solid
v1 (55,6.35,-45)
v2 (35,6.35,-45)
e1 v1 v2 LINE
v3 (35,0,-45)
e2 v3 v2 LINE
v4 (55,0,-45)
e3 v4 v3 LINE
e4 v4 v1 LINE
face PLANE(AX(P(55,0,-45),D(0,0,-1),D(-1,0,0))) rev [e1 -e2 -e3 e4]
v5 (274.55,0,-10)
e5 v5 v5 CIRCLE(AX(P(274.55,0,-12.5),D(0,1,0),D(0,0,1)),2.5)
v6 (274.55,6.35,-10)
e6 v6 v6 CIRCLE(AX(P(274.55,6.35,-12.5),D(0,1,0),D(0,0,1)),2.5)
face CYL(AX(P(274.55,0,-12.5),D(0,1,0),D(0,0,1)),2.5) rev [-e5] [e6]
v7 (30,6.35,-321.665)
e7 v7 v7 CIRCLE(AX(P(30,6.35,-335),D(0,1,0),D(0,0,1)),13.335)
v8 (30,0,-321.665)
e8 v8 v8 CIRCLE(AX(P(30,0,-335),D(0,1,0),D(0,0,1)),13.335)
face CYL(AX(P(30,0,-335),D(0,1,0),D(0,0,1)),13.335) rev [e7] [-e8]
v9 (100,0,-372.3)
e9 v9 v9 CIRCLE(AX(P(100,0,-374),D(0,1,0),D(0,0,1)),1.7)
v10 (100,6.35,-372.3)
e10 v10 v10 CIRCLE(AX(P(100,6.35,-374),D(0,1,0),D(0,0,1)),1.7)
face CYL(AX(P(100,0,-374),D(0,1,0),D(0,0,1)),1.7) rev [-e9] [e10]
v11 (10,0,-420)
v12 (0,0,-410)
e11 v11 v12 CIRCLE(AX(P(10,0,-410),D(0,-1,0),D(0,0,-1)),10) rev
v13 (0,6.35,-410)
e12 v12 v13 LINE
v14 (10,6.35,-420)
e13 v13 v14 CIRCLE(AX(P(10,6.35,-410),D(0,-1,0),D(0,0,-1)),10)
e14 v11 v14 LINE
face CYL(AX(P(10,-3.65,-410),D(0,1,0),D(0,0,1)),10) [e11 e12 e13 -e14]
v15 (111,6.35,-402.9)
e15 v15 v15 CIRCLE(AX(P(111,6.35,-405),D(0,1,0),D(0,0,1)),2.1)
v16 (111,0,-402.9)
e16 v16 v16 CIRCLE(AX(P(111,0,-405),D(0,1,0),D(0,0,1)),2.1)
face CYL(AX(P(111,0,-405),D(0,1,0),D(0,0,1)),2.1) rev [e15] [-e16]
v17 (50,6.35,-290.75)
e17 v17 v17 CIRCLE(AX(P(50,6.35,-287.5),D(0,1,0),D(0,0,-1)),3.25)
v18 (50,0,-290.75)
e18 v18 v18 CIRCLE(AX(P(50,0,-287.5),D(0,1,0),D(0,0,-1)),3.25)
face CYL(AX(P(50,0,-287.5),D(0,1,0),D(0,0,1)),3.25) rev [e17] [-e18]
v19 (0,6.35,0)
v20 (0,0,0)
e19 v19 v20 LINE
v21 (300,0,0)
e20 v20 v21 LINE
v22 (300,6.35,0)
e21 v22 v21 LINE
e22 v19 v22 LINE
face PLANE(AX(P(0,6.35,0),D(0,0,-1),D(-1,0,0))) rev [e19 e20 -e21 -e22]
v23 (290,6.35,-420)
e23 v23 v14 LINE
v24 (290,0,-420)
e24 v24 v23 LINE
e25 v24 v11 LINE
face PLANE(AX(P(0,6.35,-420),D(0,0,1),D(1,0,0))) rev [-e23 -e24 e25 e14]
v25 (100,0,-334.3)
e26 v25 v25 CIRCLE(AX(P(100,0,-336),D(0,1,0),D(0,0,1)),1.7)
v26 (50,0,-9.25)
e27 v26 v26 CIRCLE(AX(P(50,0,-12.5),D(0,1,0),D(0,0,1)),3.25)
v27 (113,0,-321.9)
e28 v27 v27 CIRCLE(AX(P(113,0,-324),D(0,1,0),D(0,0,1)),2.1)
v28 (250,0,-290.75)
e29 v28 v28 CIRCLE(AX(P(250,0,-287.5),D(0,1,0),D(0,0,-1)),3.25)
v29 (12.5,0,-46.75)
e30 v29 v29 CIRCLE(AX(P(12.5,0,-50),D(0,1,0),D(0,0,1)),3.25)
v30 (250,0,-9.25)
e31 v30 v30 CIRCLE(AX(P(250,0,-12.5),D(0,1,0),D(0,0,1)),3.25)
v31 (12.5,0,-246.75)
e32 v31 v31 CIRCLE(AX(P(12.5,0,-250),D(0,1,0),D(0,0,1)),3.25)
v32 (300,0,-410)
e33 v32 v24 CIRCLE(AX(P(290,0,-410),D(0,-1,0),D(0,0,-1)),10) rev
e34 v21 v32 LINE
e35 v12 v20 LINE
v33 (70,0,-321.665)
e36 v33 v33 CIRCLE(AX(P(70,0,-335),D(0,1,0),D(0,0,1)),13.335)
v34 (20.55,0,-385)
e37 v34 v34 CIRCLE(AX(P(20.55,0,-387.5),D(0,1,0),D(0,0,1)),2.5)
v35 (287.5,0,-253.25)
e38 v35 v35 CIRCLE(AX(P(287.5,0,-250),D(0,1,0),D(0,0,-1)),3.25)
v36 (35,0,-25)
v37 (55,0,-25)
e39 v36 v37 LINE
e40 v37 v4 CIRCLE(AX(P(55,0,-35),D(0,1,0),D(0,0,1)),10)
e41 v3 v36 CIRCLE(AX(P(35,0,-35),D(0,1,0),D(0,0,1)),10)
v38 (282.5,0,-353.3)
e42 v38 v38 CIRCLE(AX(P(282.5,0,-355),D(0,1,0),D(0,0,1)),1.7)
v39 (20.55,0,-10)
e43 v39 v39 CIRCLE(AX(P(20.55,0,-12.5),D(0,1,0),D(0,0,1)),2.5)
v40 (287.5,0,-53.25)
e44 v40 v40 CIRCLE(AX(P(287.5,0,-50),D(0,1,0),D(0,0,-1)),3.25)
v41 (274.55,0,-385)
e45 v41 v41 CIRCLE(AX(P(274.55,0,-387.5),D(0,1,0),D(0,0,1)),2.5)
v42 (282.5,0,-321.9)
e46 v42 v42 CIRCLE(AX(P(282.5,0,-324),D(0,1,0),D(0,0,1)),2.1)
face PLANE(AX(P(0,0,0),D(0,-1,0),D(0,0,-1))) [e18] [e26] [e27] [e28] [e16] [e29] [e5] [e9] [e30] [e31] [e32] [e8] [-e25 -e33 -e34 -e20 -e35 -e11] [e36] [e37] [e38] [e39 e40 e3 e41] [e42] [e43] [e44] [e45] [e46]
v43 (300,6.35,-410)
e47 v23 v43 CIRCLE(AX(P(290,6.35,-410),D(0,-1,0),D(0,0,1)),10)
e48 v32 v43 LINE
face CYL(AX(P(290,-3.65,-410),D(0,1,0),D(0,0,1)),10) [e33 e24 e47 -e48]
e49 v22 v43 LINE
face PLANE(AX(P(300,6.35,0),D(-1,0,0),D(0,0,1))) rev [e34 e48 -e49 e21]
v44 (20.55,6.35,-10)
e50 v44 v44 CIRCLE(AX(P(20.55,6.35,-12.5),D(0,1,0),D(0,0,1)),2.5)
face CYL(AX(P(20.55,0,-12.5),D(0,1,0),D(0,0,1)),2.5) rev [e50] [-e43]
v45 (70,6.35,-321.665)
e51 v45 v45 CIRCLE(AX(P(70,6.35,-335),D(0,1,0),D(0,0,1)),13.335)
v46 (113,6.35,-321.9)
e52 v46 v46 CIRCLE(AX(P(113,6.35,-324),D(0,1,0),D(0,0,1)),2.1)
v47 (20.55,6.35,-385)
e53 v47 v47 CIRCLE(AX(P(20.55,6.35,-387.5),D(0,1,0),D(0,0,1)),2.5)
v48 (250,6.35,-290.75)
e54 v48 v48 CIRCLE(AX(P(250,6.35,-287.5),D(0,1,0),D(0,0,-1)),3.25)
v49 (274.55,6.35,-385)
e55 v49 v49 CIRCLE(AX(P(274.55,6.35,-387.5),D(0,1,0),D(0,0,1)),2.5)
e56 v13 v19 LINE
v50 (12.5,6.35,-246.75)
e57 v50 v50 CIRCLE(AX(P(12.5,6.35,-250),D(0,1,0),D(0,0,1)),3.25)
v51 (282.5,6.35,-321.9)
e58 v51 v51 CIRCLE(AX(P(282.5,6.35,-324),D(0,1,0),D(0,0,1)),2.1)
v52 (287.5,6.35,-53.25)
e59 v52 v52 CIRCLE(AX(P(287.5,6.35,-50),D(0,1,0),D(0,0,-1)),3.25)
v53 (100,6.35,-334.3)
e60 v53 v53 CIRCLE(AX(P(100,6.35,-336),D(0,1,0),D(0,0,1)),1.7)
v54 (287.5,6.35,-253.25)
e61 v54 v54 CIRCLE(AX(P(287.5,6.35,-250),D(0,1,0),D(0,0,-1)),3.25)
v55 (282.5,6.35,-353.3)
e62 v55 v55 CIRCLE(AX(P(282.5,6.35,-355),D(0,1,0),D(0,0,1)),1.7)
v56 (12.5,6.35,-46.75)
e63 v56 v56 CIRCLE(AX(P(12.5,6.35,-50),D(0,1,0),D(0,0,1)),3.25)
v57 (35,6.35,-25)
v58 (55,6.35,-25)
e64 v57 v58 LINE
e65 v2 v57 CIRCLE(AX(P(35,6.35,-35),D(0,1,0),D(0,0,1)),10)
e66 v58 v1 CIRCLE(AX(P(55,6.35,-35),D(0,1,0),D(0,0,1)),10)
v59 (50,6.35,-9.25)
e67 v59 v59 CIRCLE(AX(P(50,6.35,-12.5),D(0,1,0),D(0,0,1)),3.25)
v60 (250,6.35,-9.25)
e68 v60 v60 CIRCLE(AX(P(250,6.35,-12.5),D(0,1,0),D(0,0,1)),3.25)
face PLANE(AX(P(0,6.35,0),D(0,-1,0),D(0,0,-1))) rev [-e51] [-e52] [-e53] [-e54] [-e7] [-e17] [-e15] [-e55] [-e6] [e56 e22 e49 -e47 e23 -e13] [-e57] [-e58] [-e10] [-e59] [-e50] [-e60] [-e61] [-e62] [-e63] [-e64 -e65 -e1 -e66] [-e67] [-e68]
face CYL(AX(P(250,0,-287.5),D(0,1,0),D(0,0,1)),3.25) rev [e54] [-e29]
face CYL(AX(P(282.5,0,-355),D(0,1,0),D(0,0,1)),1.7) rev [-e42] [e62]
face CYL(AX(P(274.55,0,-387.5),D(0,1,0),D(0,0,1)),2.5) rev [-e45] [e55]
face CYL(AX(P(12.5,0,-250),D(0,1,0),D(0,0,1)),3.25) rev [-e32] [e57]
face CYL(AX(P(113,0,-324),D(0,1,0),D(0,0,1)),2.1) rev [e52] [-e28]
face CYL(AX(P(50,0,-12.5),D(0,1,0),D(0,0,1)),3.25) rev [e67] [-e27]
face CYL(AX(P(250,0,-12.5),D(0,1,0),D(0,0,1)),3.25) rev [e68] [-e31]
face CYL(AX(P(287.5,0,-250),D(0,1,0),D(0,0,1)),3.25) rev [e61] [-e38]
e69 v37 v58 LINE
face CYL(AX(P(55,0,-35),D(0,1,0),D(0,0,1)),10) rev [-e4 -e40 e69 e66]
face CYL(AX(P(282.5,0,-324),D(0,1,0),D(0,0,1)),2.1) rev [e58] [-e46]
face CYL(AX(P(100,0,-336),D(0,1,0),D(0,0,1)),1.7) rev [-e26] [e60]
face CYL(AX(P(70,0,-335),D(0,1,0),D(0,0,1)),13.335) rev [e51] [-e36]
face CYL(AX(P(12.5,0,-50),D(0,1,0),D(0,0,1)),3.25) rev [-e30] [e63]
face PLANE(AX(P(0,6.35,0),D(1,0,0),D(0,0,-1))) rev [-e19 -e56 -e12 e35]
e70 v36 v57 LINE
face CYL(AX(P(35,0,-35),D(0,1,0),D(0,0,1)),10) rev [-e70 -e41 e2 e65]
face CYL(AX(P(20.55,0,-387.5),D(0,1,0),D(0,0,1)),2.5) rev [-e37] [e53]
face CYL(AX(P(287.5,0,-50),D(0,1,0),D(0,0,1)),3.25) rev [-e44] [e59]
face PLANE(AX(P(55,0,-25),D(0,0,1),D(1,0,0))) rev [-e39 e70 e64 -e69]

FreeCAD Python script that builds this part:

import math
import FreeCAD as App
import Part
import Sketcher

V = App.Vector
Q = App.Units.Quantity

doc = App.newDocument("Part")
body = doc.addObject("PartDesign::Body", "Body")

# Sketch on XZ plane
sketch1 = doc.addObject("Sketcher::SketchObject", "Sketch")
body.addObject(sketch1)
sketch1.AttachmentSupport = (doc.XZ_Plane, [""])
sketch1.MapMode = "FlatFace"
sketch1.addGeometry([
    Part.LineSegment(V(0, -420, 0), V(0, 0, 0)),
    Part.LineSegment(V(0, 0, 0), V(300, 0, 0)),
    Part.LineSegment(V(300, 0, 0), V(300, -420, 0)),
    Part.LineSegment(V(300, -420, 0), V(0, -420, 0)),
], False)
sketch1.addConstraint([
    Sketcher.Constraint("Coincident", 0, 2, 1, 1),
    Sketcher.Constraint("Coincident", 1, 2, 2, 1),
    Sketcher.Constraint("Coincident", 2, 2, 3, 1),
    Sketcher.Constraint("Coincident", 3, 2, 0, 1),
    Sketcher.Constraint("Vertical", 0),
    Sketcher.Constraint("Horizontal", 1),
    Sketcher.Constraint("Vertical", 2),
    Sketcher.Constraint("Horizontal", 3),
    Sketcher.Constraint("Coincident", 0, 2, -1, 1),
    Sketcher.Constraint("DistanceX", 1, 1, 1, 2, Q("300 mm")),
    Sketcher.Constraint("DistanceY", 0, 1, 0, 2, Q("420 mm")),
])
pad1 = doc.addObject("PartDesign::Pad", "Pad")
body.addObject(pad1)
pad1.Profile = sketch1
pad1.Length = 6.35
pad1.Reversed = True

# Sketch on XZ plane
sketch2 = doc.addObject("Sketcher::SketchObject", "Sketch001")
body.addObject(sketch2)
sketch2.AttachmentSupport = (doc.XZ_Plane, [""])
sketch2.MapMode = "FlatFace"
sketch2.AttachmentOffset = App.Placement(V(0, 0, -6.35), App.Rotation())
sketch2.addGeometry([
    Part.Circle(V(50, -12.5, 0), V(0, 0, 1), 3.25),  # 0
    Part.Circle(V(250, -12.5, 0), V(0, 0, 1), 3.25),  # 1
    Part.Circle(V(12.5, -50, 0), V(0, 0, 1), 3.25),  # 2
    Part.Circle(V(12.5, -250, 0), V(0, 0, 1), 3.25),  # 3
    Part.Circle(V(250, -287.5, 0), V(0, 0, 1), 3.25),  # 4
    Part.Circle(V(50, -287.5, 0), V(0, 0, 1), 3.25),  # 5
    Part.Circle(V(287.5, -250, 0), V(0, 0, 1), 3.25),  # 6
    Part.Circle(V(287.5, -50, 0), V(0, 0, 1), 3.25),  # 7
], False)
sketch2.addConstraint([
    Sketcher.Constraint("Equal", 0, 1),
    Sketcher.Constraint("Equal", 1, 2),
    Sketcher.Constraint("Equal", 2, 3),
    Sketcher.Constraint("Equal", 3, 4),
    Sketcher.Constraint("Equal", 4, 5),
    Sketcher.Constraint("Equal", 5, 6),
    Sketcher.Constraint("Equal", 6, 7),
    Sketcher.Constraint("Horizontal", 0, 3, 1, 3),
    Sketcher.Constraint("Horizontal", 4, 3, 5, 3),
    Sketcher.Constraint("Horizontal", 3, 3, 6, 3),
    Sketcher.Constraint("Horizontal", 2, 3, 7, 3),
    Sketcher.Constraint("Vertical", 2, 3, 3, 3),
    Sketcher.Constraint("Vertical", 1, 3, 4, 3),
    Sketcher.Constraint("Vertical", 0, 3, 5, 3),
    Sketcher.Constraint("Vertical", 6, 3, 7, 3),
    Sketcher.Constraint("Diameter", 0, Q("6.5 mm")),
    Sketcher.Constraint("DistanceX", -1, 1, 0, 3, Q("50 mm")),
    Sketcher.Constraint("DistanceX", -1, 1, 1, 3, Q("250 mm")),
    Sketcher.Constraint("DistanceY", 2, 3, -1, 1, Q("50 mm")),
    Sketcher.Constraint("DistanceY", 3, 3, -1, 1, Q("250 mm")),
    Sketcher.Constraint("DistanceY", 4, 3, 1, 3, Q("275 mm")),
    Sketcher.Constraint("DistanceX", 3, 3, 6, 3, Q("275 mm")),
    Sketcher.Constraint("DistanceY", 0, 3, -1, 1, Q("12.5 mm")),
    Sketcher.Constraint("DistanceX", -1, 1, 2, 3, Q("12.5 mm")),
])
pocket1 = doc.addObject("PartDesign::Pocket", "Pocket")
body.addObject(pocket1)
pocket1.Profile = sketch2
pocket1.Type = "ThroughAll"
pocket1.Reversed = True

# Sketch on XZ plane
sketch3 = doc.addObject("Sketcher::SketchObject", "Sketch002")
body.addObject(sketch3)
sketch3.AttachmentSupport = (doc.XZ_Plane, [""])
sketch3.MapMode = "FlatFace"
sketch3.AttachmentOffset = App.Placement(V(0, 0, -6.35), App.Rotation())
sketch3.addGeometry([
    Part.Circle(V(20.55, -12.5, 0), V(0, 0, 1), 2.5),
    Part.Circle(V(274.55, -12.5, 0), V(0, 0, 1), 2.5),
    Part.Circle(V(20.55, -387.5, 0), V(0, 0, 1), 2.5),
    Part.Circle(V(274.55, -387.5, 0), V(0, 0, 1), 2.5),
], False)
sketch3.addConstraint([
    Sketcher.Constraint("Equal", 0, 1),
    Sketcher.Constraint("Equal", 1, 2),
    Sketcher.Constraint("Equal", 2, 3),
    Sketcher.Constraint("Horizontal", 0, 3, 1, 3),
    Sketcher.Constraint("Horizontal", 2, 3, 3, 3),
    Sketcher.Constraint("Vertical", 0, 3, 2, 3),
    Sketcher.Constraint("Vertical", 1, 3, 3, 3),
    Sketcher.Constraint("Diameter", 0, Q("5 mm")),
    Sketcher.Constraint("DistanceX", 0, 3, 1, 3, Q("254 mm")),
    Sketcher.Constraint("DistanceY", 2, 3, 0, 3, Q("375 mm")),
    Sketcher.Constraint("DistanceY", 0, 3, -1, 1, Q("12.5 mm")),
    Sketcher.Constraint("DistanceX", -1, 1, 0, 3, Q("20.55 mm")),
])
pocket2 = doc.addObject("PartDesign::Pocket", "Pocket001")
body.addObject(pocket2)
pocket2.Profile = sketch3
pocket2.Type = "ThroughAll"
pocket2.Reversed = True

# Sketch on XZ plane
sketch4 = doc.addObject("Sketcher::SketchObject", "Sketch003")
body.addObject(sketch4)
sketch4.AttachmentSupport = (doc.XZ_Plane, [""])
sketch4.MapMode = "FlatFace"
sketch4.AttachmentOffset = App.Placement(V(0, 0, -6.35), App.Rotation())
sketch4.addGeometry([
    Part.Circle(V(282.5, -355, 0), V(0, 0, 1), 1.7),
    Part.Circle(V(100, -336, 0), V(0, 0, 1), 1.7),
    Part.Circle(V(100, -374, 0), V(0, 0, 1), 1.7),
], False)
sketch4.addConstraint([
    Sketcher.Constraint("Equal", 0, 1),
    Sketcher.Constraint("Equal", 1, 2),
    Sketcher.Constraint("Vertical", 1, 3, 2, 3),
    Sketcher.Constraint("Diameter", 0, Q("3.4 mm")),
    Sketcher.Constraint("DistanceY", 0, 3, -1, 1, Q("355 mm")),
    Sketcher.Constraint("DistanceX", -1, 1, 1, 3, Q("100 mm")),
    Sketcher.Constraint("DistanceY", 1, 3, -1, 1, Q("336 mm")),
    Sketcher.Constraint("DistanceY", 2, 3, -1, 1, Q("374 mm")),
    Sketcher.Constraint("DistanceX", -1, 1, 0, 3, Q("282.5 mm")),
])
pocket3 = doc.addObject("PartDesign::Pocket", "Pocket002")
body.addObject(pocket3)
pocket3.Profile = sketch4
pocket3.Type = "ThroughAll"
pocket3.Reversed = True

# Sketch on XZ plane
sketch5 = doc.addObject("Sketcher::SketchObject", "Sketch004")
body.addObject(sketch5)
sketch5.AttachmentSupport = (doc.XZ_Plane, [""])
sketch5.MapMode = "FlatFace"
sketch5.AttachmentOffset = App.Placement(V(0, 0, -6.35), App.Rotation())
sketch5.addGeometry([
    Part.LineSegment(V(300, -420, 0), V(290, -420, 0)),  # 0
    Part.ArcOfCircle(Part.Circle(V(290, -410, 0), V(0, 0, 1), 10), math.radians(-90), math.radians(0)),  # 1
    Part.LineSegment(V(300, -410, 0), V(300, -420, 0)),  # 2
    Part.LineSegment(V(10, -420, 0), V(0, -420, 0)),  # 3
    Part.LineSegment(V(0, -420, 0), V(0, -410, 0)),  # 4
    Part.ArcOfCircle(Part.Circle(V(10, -410, 0), V(0, 0, 1), 10), math.radians(180), math.radians(270)),  # 5
], False)
sketch5.addConstraint([
    Sketcher.Constraint("Tangent", 0, 2, 1, 1),
    Sketcher.Constraint("Tangent", 1, 2, 2, 1),
    Sketcher.Constraint("Coincident", 2, 2, 0, 1),
    Sketcher.Constraint("Coincident", 3, 2, 4, 1),
    Sketcher.Constraint("Tangent", 4, 2, 5, 1),
    Sketcher.Constraint("Tangent", 5, 2, 3, 1),
    Sketcher.Constraint("Horizontal", 0),
    Sketcher.Constraint("Vertical", 2),
    Sketcher.Constraint("Horizontal", 3),
    Sketcher.Constraint("Vertical", 4),
    Sketcher.Constraint("Equal", 1, 5),
    Sketcher.Constraint("PointOnObject", 3, 2, -2),
    Sketcher.Constraint("Horizontal", 1, 3, 5, 3),
    Sketcher.Constraint("Radius", 1, Q("10 mm")),
    Sketcher.Constraint("DistanceX", -1, 1, 1, 3, Q("290 mm")),
    Sketcher.Constraint("DistanceY", 1, 3, -1, 1, Q("410 mm")),
])
pocket4 = doc.addObject("PartDesign::Pocket", "Pocket003")
body.addObject(pocket4)
pocket4.Profile = sketch5
pocket4.Length = 10
pocket4.Reversed = True

# Sketch on XZ plane
sketch6 = doc.addObject("Sketcher::SketchObject", "Sketch005")
body.addObject(sketch6)
sketch6.AttachmentSupport = (doc.XZ_Plane, [""])
sketch6.MapMode = "FlatFace"
sketch6.AttachmentOffset = App.Placement(V(0, 0, -6.35), App.Rotation())
sketch6.addGeometry([
    Part.Circle(V(70, -335, 0), V(0, 0, 1), 13.335),
    Part.Circle(V(30, -335, 0), V(0, 0, 1), 13.335),
], False)
sketch6.addConstraint([
    Sketcher.Constraint("Equal", 0, 1),
    Sketcher.Constraint("Horizontal", 0, 3, 1, 3),
    Sketcher.Constraint("Diameter", 0, Q("26.67 mm")),
    Sketcher.Constraint("DistanceX", -1, 1, 0, 3, Q("70 mm")),
    Sketcher.Constraint("DistanceY", 0, 3, -1, 1, Q("335 mm")),
    Sketcher.Constraint("DistanceX", -1, 1, 1, 3, Q("30 mm")),
])
pocket5 = doc.addObject("PartDesign::Pocket", "Pocket004")
body.addObject(pocket5)
pocket5.Profile = sketch6
pocket5.Type = "ThroughAll"
pocket5.Reversed = True

# Sketch on XZ plane
sketch7 = doc.addObject("Sketcher::SketchObject", "Sketch006")
body.addObject(sketch7)
sketch7.AttachmentSupport = (doc.XZ_Plane, [""])
sketch7.MapMode = "FlatFace"
sketch7.AttachmentOffset = App.Placement(V(0, 0, -6.35), App.Rotation())
sketch7.addGeometry([
    Part.Circle(V(282.5, -324, 0), V(0, 0, 1), 2.1),
    Part.Circle(V(111, -405, 0), V(0, 0, 1), 2.1),
    Part.Circle(V(113, -324, 0), V(0, 0, 1), 2.1),
], False)
sketch7.addConstraint([
    Sketcher.Constraint("Equal", 0, 1),
    Sketcher.Constraint("Equal", 1, 2),
    Sketcher.Constraint("Horizontal", 0, 3, 2, 3),
    Sketcher.Constraint("Diameter", 0, Q("4.2 mm")),
    Sketcher.Constraint("DistanceY", 0, 3, -1, 1, Q("324 mm")),
    Sketcher.Constraint("DistanceX", -1, 1, 1, 3, Q("111 mm")),
    Sketcher.Constraint("DistanceY", 1, 3, -1, 1, Q("405 mm")),
    Sketcher.Constraint("DistanceX", -1, 1, 2, 3, Q("113 mm")),
    Sketcher.Constraint("DistanceX", -1, 1, 0, 3, Q("282.5 mm")),
])
pocket6 = doc.addObject("PartDesign::Pocket", "Pocket005")
body.addObject(pocket6)
pocket6.Profile = sketch7
pocket6.Type = "ThroughAll"
pocket6.Reversed = True

# Sketch on XZ plane
sketch8 = doc.addObject("Sketcher::SketchObject", "Sketch007")
body.addObject(sketch8)
sketch8.AttachmentSupport = (doc.XZ_Plane, [""])
sketch8.MapMode = "FlatFace"
sketch8.AttachmentOffset = App.Placement(V(0, 0, -6.35), App.Rotation())
sketch8.addGeometry([
    Part.LineSegment(V(35, -25, 0), V(55, -25, 0)),
    Part.ArcOfCircle(Part.Circle(V(55, -35, 0), V(0, 0, 1), 10), math.radians(-90), math.radians(90)),
    Part.LineSegment(V(55, -45, 0), V(35, -45, 0)),
    Part.ArcOfCircle(Part.Circle(V(35, -35, 0), V(0, 0, 1), 10), math.radians(90), math.radians(270)),
], False)
sketch8.addConstraint([
    Sketcher.Constraint("Tangent", 0, 2, 1, 2),
    Sketcher.Constraint("Tangent", 1, 1, 2, 1),
    Sketcher.Constraint("Tangent", 2, 2, 3, 2),
    Sketcher.Constraint("Tangent", 3, 1, 0, 1),
    Sketcher.Constraint("Horizontal", 0),
    Sketcher.Constraint("Horizontal", 2),
    Sketcher.Constraint("Radius", 1, Q("10 mm")),
    Sketcher.Constraint("DistanceX", 0, 1, 0, 2, Q("20 mm")),
    Sketcher.Constraint("DistanceX", -1, 1, 1, 3, Q("55 mm")),
    Sketcher.Constraint("DistanceY", 1, 3, -1, 1, Q("35 mm")),
])
pocket7 = doc.addObject("PartDesign::Pocket", "Pocket006")
body.addObject(pocket7)
pocket7.Profile = sketch8
pocket7.Type = "ThroughAll"
pocket7.Reversed = True

doc.recompute()
